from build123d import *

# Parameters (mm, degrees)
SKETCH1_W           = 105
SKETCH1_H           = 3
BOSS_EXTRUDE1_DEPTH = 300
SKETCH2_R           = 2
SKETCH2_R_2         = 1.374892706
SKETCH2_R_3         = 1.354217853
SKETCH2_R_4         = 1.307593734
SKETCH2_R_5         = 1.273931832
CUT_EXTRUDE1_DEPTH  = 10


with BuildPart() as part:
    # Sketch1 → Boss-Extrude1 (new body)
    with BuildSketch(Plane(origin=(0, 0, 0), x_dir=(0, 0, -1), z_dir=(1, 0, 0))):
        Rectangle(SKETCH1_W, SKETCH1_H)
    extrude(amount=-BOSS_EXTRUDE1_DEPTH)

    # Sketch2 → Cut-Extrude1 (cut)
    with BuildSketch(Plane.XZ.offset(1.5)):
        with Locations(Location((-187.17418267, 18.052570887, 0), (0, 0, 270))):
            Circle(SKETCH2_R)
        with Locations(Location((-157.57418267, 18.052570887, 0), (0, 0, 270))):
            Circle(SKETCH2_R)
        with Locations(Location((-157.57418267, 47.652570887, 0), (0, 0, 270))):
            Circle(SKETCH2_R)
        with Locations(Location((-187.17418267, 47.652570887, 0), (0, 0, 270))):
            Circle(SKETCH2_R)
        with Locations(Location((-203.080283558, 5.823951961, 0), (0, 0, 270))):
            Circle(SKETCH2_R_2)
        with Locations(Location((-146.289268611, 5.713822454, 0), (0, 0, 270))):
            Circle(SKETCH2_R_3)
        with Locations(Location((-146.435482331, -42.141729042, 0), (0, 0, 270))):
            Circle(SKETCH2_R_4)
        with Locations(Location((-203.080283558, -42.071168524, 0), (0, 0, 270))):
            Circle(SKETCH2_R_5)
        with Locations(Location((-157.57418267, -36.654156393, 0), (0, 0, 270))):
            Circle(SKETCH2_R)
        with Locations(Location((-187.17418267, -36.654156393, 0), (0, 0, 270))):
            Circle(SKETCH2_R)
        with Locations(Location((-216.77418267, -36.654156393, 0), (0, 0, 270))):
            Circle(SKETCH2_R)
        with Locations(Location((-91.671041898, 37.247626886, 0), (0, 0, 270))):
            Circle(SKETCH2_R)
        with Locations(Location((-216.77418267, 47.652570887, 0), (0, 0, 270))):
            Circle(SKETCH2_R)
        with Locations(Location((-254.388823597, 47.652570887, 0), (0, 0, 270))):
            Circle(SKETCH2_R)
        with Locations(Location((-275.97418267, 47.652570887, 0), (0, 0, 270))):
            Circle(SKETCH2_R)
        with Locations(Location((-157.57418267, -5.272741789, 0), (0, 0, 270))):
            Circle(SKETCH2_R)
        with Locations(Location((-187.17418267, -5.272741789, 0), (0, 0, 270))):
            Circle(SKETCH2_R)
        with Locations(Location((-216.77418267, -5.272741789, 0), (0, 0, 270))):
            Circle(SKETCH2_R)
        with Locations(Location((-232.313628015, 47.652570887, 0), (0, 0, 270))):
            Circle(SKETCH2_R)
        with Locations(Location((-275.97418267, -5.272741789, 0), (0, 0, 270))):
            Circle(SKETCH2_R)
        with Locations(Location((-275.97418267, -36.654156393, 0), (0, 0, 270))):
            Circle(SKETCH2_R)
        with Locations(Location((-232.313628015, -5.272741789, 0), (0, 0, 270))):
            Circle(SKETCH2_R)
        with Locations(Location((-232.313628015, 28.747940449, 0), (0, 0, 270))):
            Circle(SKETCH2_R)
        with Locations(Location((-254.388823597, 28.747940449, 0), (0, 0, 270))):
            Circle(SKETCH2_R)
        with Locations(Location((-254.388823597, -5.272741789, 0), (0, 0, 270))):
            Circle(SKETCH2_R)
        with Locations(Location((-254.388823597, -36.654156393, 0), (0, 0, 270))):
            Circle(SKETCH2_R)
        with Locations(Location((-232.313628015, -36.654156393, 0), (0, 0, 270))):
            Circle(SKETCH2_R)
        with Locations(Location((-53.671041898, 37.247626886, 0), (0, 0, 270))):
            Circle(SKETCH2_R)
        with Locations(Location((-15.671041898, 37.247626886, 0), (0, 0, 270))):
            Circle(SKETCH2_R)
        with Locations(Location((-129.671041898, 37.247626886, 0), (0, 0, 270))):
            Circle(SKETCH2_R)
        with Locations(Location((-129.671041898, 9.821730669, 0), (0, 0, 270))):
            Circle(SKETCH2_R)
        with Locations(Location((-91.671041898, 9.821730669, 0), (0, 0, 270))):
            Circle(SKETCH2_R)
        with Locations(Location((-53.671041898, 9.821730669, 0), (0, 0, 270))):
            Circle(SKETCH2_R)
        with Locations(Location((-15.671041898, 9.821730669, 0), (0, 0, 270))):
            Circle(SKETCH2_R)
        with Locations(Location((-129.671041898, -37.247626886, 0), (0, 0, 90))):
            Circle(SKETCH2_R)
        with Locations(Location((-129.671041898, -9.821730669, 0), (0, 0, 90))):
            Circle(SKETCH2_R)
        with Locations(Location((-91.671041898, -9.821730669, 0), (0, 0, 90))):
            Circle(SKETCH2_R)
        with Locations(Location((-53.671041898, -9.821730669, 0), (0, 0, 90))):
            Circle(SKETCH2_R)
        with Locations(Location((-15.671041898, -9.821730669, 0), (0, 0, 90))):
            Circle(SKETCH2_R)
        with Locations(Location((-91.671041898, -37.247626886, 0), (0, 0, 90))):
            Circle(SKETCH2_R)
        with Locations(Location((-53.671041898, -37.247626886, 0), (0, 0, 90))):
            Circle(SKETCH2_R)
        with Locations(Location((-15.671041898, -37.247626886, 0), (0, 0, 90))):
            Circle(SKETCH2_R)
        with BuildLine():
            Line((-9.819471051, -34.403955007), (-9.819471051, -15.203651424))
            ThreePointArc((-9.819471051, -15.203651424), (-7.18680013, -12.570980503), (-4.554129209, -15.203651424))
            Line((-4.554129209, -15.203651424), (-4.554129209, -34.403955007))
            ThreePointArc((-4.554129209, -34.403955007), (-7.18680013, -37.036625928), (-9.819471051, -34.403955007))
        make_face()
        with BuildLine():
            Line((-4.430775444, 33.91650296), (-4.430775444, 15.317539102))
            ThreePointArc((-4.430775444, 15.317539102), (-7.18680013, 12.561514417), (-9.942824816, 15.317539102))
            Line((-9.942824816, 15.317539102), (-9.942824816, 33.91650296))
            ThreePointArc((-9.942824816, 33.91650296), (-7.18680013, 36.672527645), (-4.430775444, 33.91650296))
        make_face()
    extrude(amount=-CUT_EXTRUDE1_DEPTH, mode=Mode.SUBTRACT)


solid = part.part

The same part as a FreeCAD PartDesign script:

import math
import FreeCAD as App
import Part
import Sketcher
Q = App.Units.Quantity

doc = App.newDocument("Part")
body = doc.addObject("PartDesign::Body", "Body")

# Sketch on YZ plane
sketch1 = doc.addObject("Sketcher::SketchObject", "Sketch")
body.addObject(sketch1)
sketch1.AttachmentSupport = (doc.YZ_Plane, [""])
sketch1.MapMode = "FlatFace"
sketch1.addGeometry([
    Part.LineSegment(App.Vector(1.5, 52.5, 0), App.Vector(-1.5, 52.5, 0)),
    Part.LineSegment(App.Vector(-1.5, 52.5, 0), App.Vector(-1.5, -52.5, 0)),
    Part.LineSegment(App.Vector(-1.5, -52.5, 0), App.Vector(1.5, -52.5, 0)),
    Part.LineSegment(App.Vector(1.5, -52.5, 0), App.Vector(1.5, 52.5, 0)),
], False)
sketch1.addConstraint([
    Sketcher.Constraint("Coincident", 0, 2, 1, 1),
    Sketcher.Constraint("Coincident", 1, 2, 2, 1),
    Sketcher.Constraint("Coincident", 2, 2, 3, 1),
    Sketcher.Constraint("Coincident", 3, 2, 0, 1),
    Sketcher.Constraint("Horizontal", 0),
    Sketcher.Constraint("Vertical", 1),
    Sketcher.Constraint("Horizontal", 2),
    Sketcher.Constraint("Vertical", 3),
    Sketcher.Constraint("Symmetric", 0, 2, 2, 2, -1, 1),
    Sketcher.Constraint("DistanceX", 0, 2, 0, 1, Q("3 mm")),
    Sketcher.Constraint("DistanceY", 1, 2, 1, 1, Q("105 mm")),
])
pad1 = doc.addObject("PartDesign::Pad", "Pad")
body.addObject(pad1)
pad1.Profile = sketch1
pad1.Length = 300
pad1.Reversed = True

# Sketch on XZ plane
sketch2 = doc.addObject("Sketcher::SketchObject", "Sketch001")
body.addObject(sketch2)
sketch2.AttachmentSupport = (doc.XZ_Plane, [""])
sketch2.MapMode = "FlatFace"
sketch2.AttachmentOffset = App.Placement(App.Vector(0, 0, 1.5), App.Rotation())
sketch2.addGeometry([
    Part.Circle(App.Vector(-187.2, 18.1, 0), App.Vector(0, 0, 1), 2),  # 0
    Part.Circle(App.Vector(-157.6, 18.1, 0), App.Vector(0, 0, 1), 2),  # 1
    Part.Circle(App.Vector(-157.6, 47.7, 0), App.Vector(0, 0, 1), 2),  # 2
    Part.Circle(App.Vector(-187.2, 47.7, 0), App.Vector(0, 0, 1), 2),  # 3
    Part.Circle(App.Vector(-203.1, 5.8, 0), App.Vector(0, 0, 1), 1.4),  # 4
    Part.Circle(App.Vector(-146.3, 5.7, 0), App.Vector(0, 0, 1), 1.4),  # 5
    Part.Circle(App.Vector(-146.4, -42.1, 0), App.Vector(0, 0, 1), 1.3),  # 6
    Part.Circle(App.Vector(-203.1, -42.1, 0), App.Vector(0, 0, 1), 1.3),  # 7
    Part.Circle(App.Vector(-157.6, -36.7, 0), App.Vector(0, 0, 1), 2),  # 8
    Part.Circle(App.Vector(-187.2, -36.7, 0), App.Vector(0, 0, 1), 2),  # 9
    Part.Circle(App.Vector(-216.8, -36.7, 0), App.Vector(0, 0, 1), 2),  # 10
    Part.Circle(App.Vector(-91.7, 37.2, 0), App.Vector(0, 0, 1), 2),  # 11
    Part.Circle(App.Vector(-216.8, 47.7, 0), App.Vector(0, 0, 1), 2),  # 12
    Part.Circle(App.Vector(-254.4, 47.7, 0), App.Vector(0, 0, 1), 2),  # 13
    Part.Circle(App.Vector(-276, 47.7, 0), App.Vector(0, 0, 1), 2),  # 14
    Part.Circle(App.Vector(-157.6, -5.3, 0), App.Vector(0, 0, 1), 2),  # 15
    Part.Circle(App.Vector(-187.2, -5.3, 0), App.Vector(0, 0, 1), 2),  # 16
    Part.Circle(App.Vector(-216.8, -5.3, 0), App.Vector(0, 0, 1), 2),  # 17
    Part.Circle(App.Vector(-232.3, 47.7, 0), App.Vector(0, 0, 1), 2),  # 18
    Part.Circle(App.Vector(-276, -5.3, 0), App.Vector(0, 0, 1), 2),  # 19
    Part.Circle(App.Vector(-276, -36.7, 0), App.Vector(0, 0, 1), 2),  # 20
    Part.Circle(App.Vector(-232.3, -5.3, 0), App.Vector(0, 0, 1), 2),  # 21
    Part.Circle(App.Vector(-232.3, 28.7, 0), App.Vector(0, 0, 1), 2),  # 22
    Part.Circle(App.Vector(-254.4, 28.7, 0), App.Vector(0, 0, 1), 2),  # 23
    Part.Circle(App.Vector(-254.4, -5.3, 0), App.Vector(0, 0, 1), 2),  # 24
    Part.Circle(App.Vector(-254.4, -36.7, 0), App.Vector(0, 0, 1), 2),  # 25
    Part.Circle(App.Vector(-232.3, -36.7, 0), App.Vector(0, 0, 1), 2),  # 26
    Part.Circle(App.Vector(-53.7, 37.2, 0), App.Vector(0, 0, 1), 2),  # 27
    Part.Circle(App.Vector(-15.7, 37.2, 0), App.Vector(0, 0, 1), 2),  # 28
    Part.Circle(App.Vector(-129.7, 37.2, 0), App.Vector(0, 0, 1), 2),  # 29
    Part.Circle(App.Vector(-129.7, 9.8, 0), App.Vector(0, 0, 1), 2),  # 30
    Part.Circle(App.Vector(-91.7, 9.8, 0), App.Vector(0, 0, 1), 2),  # 31
    Part.Circle(App.Vector(-53.7, 9.8, 0), App.Vector(0, 0, 1), 2),  # 32
    Part.Circle(App.Vector(-15.7, 9.8, 0), App.Vector(0, 0, 1), 2),  # 33
    Part.Circle(App.Vector(-129.7, -37.2, 0), App.Vector(0, 0, 1), 2),  # 34
    Part.Circle(App.Vector(-129.7, -9.8, 0), App.Vector(0, 0, 1), 2),  # 35
    Part.Circle(App.Vector(-91.7, -9.8, 0), App.Vector(0, 0, 1), 2),  # 36
    Part.Circle(App.Vector(-53.7, -9.8, 0), App.Vector(0, 0, 1), 2),  # 37
    Part.Circle(App.Vector(-15.7, -9.8, 0), App.Vector(0, 0, 1), 2),  # 38
    Part.Circle(App.Vector(-91.7, -37.2, 0), App.Vector(0, 0, 1), 2),  # 39
    Part.Circle(App.Vector(-53.7, -37.2, 0), App.Vector(0, 0, 1), 2),  # 40
    Part.Circle(App.Vector(-15.7, -37.2, 0), App.Vector(0, 0, 1), 2),  # 41
    Part.LineSegment(App.Vector(-9.8, -15.2, 0), App.Vector(-9.8, -34.4, 0)),  # 42
    Part.ArcOfCircle(Part.Circle(App.Vector(-7.2, -34.4, 0), App.Vector(0, 0, 1), 2.6), math.radians(180), math.radians(360)),  # 43
    Part.LineSegment(App.Vector(-4.6, -34.4, 0), App.Vector(-4.6, -15.2, 0)),  # 44
    Part.ArcOfCircle(Part.Circle(App.Vector(-7.2, -15.2, 0), App.Vector(0, 0, 1), 2.6), math.radians(0), math.radians(180)),  # 45
    Part.LineSegment(App.Vector(-4.4, 15.3, 0), App.Vector(-4.4, 33.9, 0)),  # 46
    Part.ArcOfCircle(Part.Circle(App.Vector(-7.2, 33.9, 0), App.Vector(0, 0, 1), 2.8), math.radians(0), math.radians(180)),  # 47
    Part.LineSegment(App.Vector(-9.9, 33.9, 0), App.Vector(-9.9, 15.3, 0)),  # 48
    Part.ArcOfCircle(Part.Circle(App.Vector(-7.2, 15.3, 0), App.Vector(0, 0, 1), 2.8), math.radians(-180), math.radians(0)),  # 49
], False)
sketch2.addConstraint([
    Sketcher.Constraint("Tangent", 42, 2, 43, 1),
    Sketcher.Constraint("Tangent", 43, 2, 44, 1),
    Sketcher.Constraint("Tangent", 44, 2, 45, 1),
    Sketcher.Constraint("Tangent", 45, 2, 42, 1),
    Sketcher.Constraint("Tangent", 46, 2, 47, 1),
    Sketcher.Constraint("Tangent", 47, 2, 48, 1),
    Sketcher.Constraint("Tangent", 48, 2, 49, 1),
    Sketcher.Constraint("Tangent", 49, 2, 46, 1),
    Sketcher.Constraint("Vertical", 42),
    Sketcher.Constraint("Vertical", 44),
    Sketcher.Constraint("Vertical", 46),
    Sketcher.Constraint("Vertical", 48),
    Sketcher.Constraint("Equal", 0, 1),
    Sketcher.Constraint("Equal", 1, 2),
    Sketcher.Constraint("Equal", 2, 3),
    Sketcher.Constraint("Equal", 3, 8),
    Sketcher.Constraint("Equal", 8, 9),
    Sketcher.Constraint("Equal", 9, 10),
    Sketcher.Constraint("Equal", 10, 11),
    Sketcher.Constraint("Equal", 11, 12),
    Sketcher.Constraint("Equal", 12, 13),
    Sketcher.Constraint("Equal", 13, 14),
    Sketcher.Constraint("Equal", 14, 15),
    Sketcher.Constraint("Equal", 15, 16),
    Sketcher.Constraint("Equal", 16, 17),
    Sketcher.Constraint("Equal", 17, 18),
    Sketcher.Constraint("Equal", 18, 19),
    Sketcher.Constraint("Equal", 19, 20),
    Sketcher.Constraint("Equal", 20, 21),
    Sketcher.Constraint("Equal", 21, 22),
    Sketcher.Constraint("Equal", 22, 23),
    Sketcher.Constraint("Equal", 23, 24),
    Sketcher.Constraint("Equal", 24, 25),
    Sketcher.Constraint("Equal", 25, 26),
    Sketcher.Constraint("Equal", 26, 27),
    Sketcher.Constraint("Equal", 27, 28),
    Sketcher.Constraint("Equal", 28, 29),
    Sketcher.Constraint("Equal", 29, 30),
    Sketcher.Constraint("Equal", 30, 31),
    Sketcher.Constraint("Equal", 31, 32),
    Sketcher.Constraint("Equal", 32, 33),
    Sketcher.Constraint("Equal", 33, 34),
    Sketcher.Constraint("Equal", 34, 35),
    Sketcher.Constraint("Equal", 35, 36),
    Sketcher.Constraint("Equal", 36, 37),
    Sketcher.Constraint("Equal", 37, 38),
    Sketcher.Constraint("Equal", 38, 39),
    Sketcher.Constraint("Equal", 39, 40),
    Sketcher.Constraint("Equal", 40, 41),
    Sketcher.Constraint("Symmetric", 29, 3, 34, 3, -1),
    Sketcher.Constraint("Symmetric", 30, 3, 35, 3, -1),
    Sketcher.Constraint("Symmetric", 31, 3, 36, 3, -1),
    Sketcher.Constraint("Symmetric", 32, 3, 37, 3, -1),
    Sketcher.Constraint("Symmetric", 33, 3, 38, 3, -1),
    Sketcher.Constraint("Symmetric", 11, 3, 39, 3, -1),
    Sketcher.Constraint("Symmetric", 27, 3, 40, 3, -1),
    Sketcher.Constraint("Symmetric", 28, 3, 41, 3, -1),
    Sketcher.Constraint("Horizontal", 0, 3, 1, 3),
    Sketcher.Constraint("Horizontal", 2, 3, 3, 3),
    Sketcher.Constraint("Horizontal", 8, 3, 9, 3),
    Sketcher.Constraint("Horizontal", 9, 3, 10, 3),
    Sketcher.Constraint("Horizontal", 3, 3, 12, 3),
    Sketcher.Constraint("Horizontal", 12, 3, 13, 3),
    Sketcher.Constraint("Horizontal", 13, 3, 14, 3),
    Sketcher.Constraint("Horizontal", 15, 3, 16, 3),
    Sketcher.Constraint("Horizontal", 16, 3, 17, 3),
    Sketcher.Constraint("Horizontal", 14, 3, 18, 3),
    Sketcher.Constraint("Horizontal", 17, 3, 19, 3),
    Sketcher.Constraint("Horizontal", 10, 3, 20, 3),
    Sketcher.Constraint("Horizontal", 19, 3, 21, 3),
    Sketcher.Constraint("Horizontal", 22, 3, 23, 3),
    Sketcher.Constraint("Horizontal", 21, 3, 24, 3),
    Sketcher.Constraint("Horizontal", 20, 3, 25, 3),
    Sketcher.Constraint("Horizontal", 25, 3, 26, 3),
    Sketcher.Constraint("Horizontal", 11, 3, 27, 3),
    Sketcher.Constraint("Horizontal", 27, 3, 28, 3),
    Sketcher.Constraint("Horizontal", 28, 3, 29, 3),
    Sketcher.Constraint("Horizontal", 30, 3, 31, 3),
    Sketcher.Constraint("Horizontal", 31, 3, 32, 3),
    Sketcher.Constraint("Horizontal", 32, 3, 33, 3),
    Sketcher.Constraint("Vertical", 1, 3, 2, 3),
    Sketcher.Constraint("Vertical", 0, 3, 3, 3),
    Sketcher.Constraint("Vertical", 4, 3, 7, 3),
    Sketcher.Constraint("Vertical", 2, 3, 8, 3),
    Sketcher.Constraint("Vertical", 3, 3, 9, 3),
    Sketcher.Constraint("Vertical", 10, 3, 12, 3),
    Sketcher.Constraint("Vertical", 8, 3, 15, 3),
    Sketcher.Constraint("Vertical", 9, 3, 16, 3),
    Sketcher.Constraint("Vertical", 12, 3, 17, 3),
    Sketcher.Constraint("Vertical", 14, 3, 19, 3),
    Sketcher.Constraint("Vertical", 19, 3, 20, 3),
    Sketcher.Constraint("Vertical", 18, 3, 21, 3),
    Sketcher.Constraint("Vertical", 21, 3, 22, 3),
    Sketcher.Constraint("Vertical", 13, 3, 23, 3),
    Sketcher.Constraint("Vertical", 23, 3, 24, 3),
    Sketcher.Constraint("Vertical", 24, 3, 25, 3),
    Sketcher.Constraint("Vertical", 22, 3, 26, 3),
    Sketcher.Constraint("Vertical", 29, 3, 30, 3),
    Sketcher.Constraint("Vertical", 11, 3, 31, 3),
    Sketcher.Constraint("Vertical", 27, 3, 32, 3),
    Sketcher.Constraint("Vertical", 28, 3, 33, 3),
    Sketcher.Constraint("Vertical", 45, 3, 47, 3),
    Sketcher.Constraint("Diameter", 0, Q("4 mm")),
    Sketcher.Constraint("DistanceX", 11, 3, 27, 3, Q("38 mm")),
    Sketcher.Constraint("DistanceX", 27, 3, 28, 3, Q("38 mm")),
    Sketcher.Constraint("DistanceX", 29, 3, 11, 3, Q("38 mm")),
    Sketcher.Constraint("DistanceX", 0, 3, 1, 3, Q("29.6 mm")),
    Sketcher.Constraint("DistanceY", 1, 3, 2, 3, Q("29.6 mm")),
    Sketcher.Constraint("DistanceX", 10, 3, 9, 3, Q("29.6 mm")),
    Sketcher.Constraint("DistanceX", 14, 3, 12, 3, Q("59.2 mm")),
    Sketcher.Constraint("Radius", 43, Q("2.632671 mm")),
    Sketcher.Constraint("DistanceY", 6, 3, 35, 3, Q("32.319998 mm")),
    Sketcher.Constraint("Diameter", 4, Q("2.749785 mm")),
    Sketcher.Constraint("Diameter", 5, Q("2.708436 mm")),
    Sketcher.Constraint("Diameter", 6, Q("2.615187 mm")),
    Sketcher.Constraint("Diameter", 7, Q("2.547864 mm")),
    Sketcher.Constraint("Radius", 47, Q("2.756025 mm")),
    Sketcher.Constraint("DistanceX", 43, 3, -1, 1, Q("7.1868 mm")),
    Sketcher.Constraint("DistanceX", 4, 3, 0, 3, Q("15.906101 mm")),
    Sketcher.Constraint("DistanceX", 1, 3, 6, 3, Q("11.1387 mm")),
    Sketcher.Constraint("DistanceY", 6, 3, 1, 3, Q("60.1943 mm")),
    Sketcher.Constraint("DistanceY", 42, 2, 42, 1, Q("19.200304 mm")),
    Sketcher.Constraint("DistanceY", 46, 1, 46, 2, Q("18.598964 mm")),
    Sketcher.Constraint("DistanceY", -1, 1, 0, 3, Q("18.052571 mm")),
    Sketcher.Constraint("DistanceY", -1, 1, 4, 3, Q("5.823952 mm")),
    Sketcher.Constraint("DistanceX", 5, 3, -1, 1, Q("146.289269 mm")),
    Sketcher.Constraint("DistanceY", 7, 3, -1, 1, Q("42.071169 mm")),
    Sketcher.Constraint("DistanceX", 11, 3, -1, 1, Q("91.671042 mm")),
    Sketcher.Constraint("DistanceY", 15, 3, -1, 1, Q("5.272742 mm")),
    Sketcher.Constraint("DistanceX", 18, 3, -1, 1, Q("232.313628 mm")),
    Sketcher.Constraint("DistanceY", -1, 1, 22, 3, Q("28.74794 mm")),
    Sketcher.Constraint("DistanceY", 45, 3, -1, 1, Q("15.203651 mm")),
    Sketcher.Constraint("DistanceY", -1, 1, 49, 3, Q("15.317539 mm")),
    Sketcher.Constraint("DistanceY", 5, 3, 1, 3, Q("12.338748 mm")),
    Sketcher.Constraint("DistanceY", 8, 3, 5, 3, Q("42.367979 mm")),
    Sketcher.Constraint("DistanceX", 2, 3, 11, 3, Q("65.903141 mm")),
    Sketcher.Constraint("DistanceX", 13, 3, 12, 3, Q("37.614641 mm")),
    Sketcher.Constraint("DistanceY", 15, 3, 27, 3, Q("42.520369 mm")),
])
pocket1 = doc.addObject("PartDesign::Pocket", "Pocket")
body.addObject(pocket1)
pocket1.Profile = sketch2
pocket1.Length = 10

doc.recompute()
